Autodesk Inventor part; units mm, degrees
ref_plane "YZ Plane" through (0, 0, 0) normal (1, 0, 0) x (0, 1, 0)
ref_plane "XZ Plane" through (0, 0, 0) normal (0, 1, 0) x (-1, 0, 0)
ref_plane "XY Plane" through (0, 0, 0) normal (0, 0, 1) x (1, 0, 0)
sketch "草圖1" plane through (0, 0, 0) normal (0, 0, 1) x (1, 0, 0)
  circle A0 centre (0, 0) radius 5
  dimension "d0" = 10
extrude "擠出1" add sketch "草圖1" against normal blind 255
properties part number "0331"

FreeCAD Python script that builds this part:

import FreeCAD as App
import Part
import Sketcher

doc = App.newDocument("Part")
body = doc.addObject("PartDesign::Body", "Body")

sketch1 = doc.addObject("Sketcher::SketchObject", "Sketch")
body.addObject(sketch1)
sketch1.AttachmentSupport = (doc.XY_Plane, [""])
sketch1.MapMode = "FlatFace"
sketch1.addGeometry(Part.Circle(App.Vector(0, 0, 0), App.Vector(0, 0, 1), 5), False)
sketch1.addConstraint([
    Sketcher.Constraint("Coincident", 0, 3, -1, 1),
    Sketcher.Constraint("Diameter", 0, 10.0),
])
pad1 = doc.addObject("PartDesign::Pad", "Pad")
body.addObject(pad1)
pad1.Profile = sketch1
pad1.Length = 255
pad1.Reversed = True

doc.recompute()
